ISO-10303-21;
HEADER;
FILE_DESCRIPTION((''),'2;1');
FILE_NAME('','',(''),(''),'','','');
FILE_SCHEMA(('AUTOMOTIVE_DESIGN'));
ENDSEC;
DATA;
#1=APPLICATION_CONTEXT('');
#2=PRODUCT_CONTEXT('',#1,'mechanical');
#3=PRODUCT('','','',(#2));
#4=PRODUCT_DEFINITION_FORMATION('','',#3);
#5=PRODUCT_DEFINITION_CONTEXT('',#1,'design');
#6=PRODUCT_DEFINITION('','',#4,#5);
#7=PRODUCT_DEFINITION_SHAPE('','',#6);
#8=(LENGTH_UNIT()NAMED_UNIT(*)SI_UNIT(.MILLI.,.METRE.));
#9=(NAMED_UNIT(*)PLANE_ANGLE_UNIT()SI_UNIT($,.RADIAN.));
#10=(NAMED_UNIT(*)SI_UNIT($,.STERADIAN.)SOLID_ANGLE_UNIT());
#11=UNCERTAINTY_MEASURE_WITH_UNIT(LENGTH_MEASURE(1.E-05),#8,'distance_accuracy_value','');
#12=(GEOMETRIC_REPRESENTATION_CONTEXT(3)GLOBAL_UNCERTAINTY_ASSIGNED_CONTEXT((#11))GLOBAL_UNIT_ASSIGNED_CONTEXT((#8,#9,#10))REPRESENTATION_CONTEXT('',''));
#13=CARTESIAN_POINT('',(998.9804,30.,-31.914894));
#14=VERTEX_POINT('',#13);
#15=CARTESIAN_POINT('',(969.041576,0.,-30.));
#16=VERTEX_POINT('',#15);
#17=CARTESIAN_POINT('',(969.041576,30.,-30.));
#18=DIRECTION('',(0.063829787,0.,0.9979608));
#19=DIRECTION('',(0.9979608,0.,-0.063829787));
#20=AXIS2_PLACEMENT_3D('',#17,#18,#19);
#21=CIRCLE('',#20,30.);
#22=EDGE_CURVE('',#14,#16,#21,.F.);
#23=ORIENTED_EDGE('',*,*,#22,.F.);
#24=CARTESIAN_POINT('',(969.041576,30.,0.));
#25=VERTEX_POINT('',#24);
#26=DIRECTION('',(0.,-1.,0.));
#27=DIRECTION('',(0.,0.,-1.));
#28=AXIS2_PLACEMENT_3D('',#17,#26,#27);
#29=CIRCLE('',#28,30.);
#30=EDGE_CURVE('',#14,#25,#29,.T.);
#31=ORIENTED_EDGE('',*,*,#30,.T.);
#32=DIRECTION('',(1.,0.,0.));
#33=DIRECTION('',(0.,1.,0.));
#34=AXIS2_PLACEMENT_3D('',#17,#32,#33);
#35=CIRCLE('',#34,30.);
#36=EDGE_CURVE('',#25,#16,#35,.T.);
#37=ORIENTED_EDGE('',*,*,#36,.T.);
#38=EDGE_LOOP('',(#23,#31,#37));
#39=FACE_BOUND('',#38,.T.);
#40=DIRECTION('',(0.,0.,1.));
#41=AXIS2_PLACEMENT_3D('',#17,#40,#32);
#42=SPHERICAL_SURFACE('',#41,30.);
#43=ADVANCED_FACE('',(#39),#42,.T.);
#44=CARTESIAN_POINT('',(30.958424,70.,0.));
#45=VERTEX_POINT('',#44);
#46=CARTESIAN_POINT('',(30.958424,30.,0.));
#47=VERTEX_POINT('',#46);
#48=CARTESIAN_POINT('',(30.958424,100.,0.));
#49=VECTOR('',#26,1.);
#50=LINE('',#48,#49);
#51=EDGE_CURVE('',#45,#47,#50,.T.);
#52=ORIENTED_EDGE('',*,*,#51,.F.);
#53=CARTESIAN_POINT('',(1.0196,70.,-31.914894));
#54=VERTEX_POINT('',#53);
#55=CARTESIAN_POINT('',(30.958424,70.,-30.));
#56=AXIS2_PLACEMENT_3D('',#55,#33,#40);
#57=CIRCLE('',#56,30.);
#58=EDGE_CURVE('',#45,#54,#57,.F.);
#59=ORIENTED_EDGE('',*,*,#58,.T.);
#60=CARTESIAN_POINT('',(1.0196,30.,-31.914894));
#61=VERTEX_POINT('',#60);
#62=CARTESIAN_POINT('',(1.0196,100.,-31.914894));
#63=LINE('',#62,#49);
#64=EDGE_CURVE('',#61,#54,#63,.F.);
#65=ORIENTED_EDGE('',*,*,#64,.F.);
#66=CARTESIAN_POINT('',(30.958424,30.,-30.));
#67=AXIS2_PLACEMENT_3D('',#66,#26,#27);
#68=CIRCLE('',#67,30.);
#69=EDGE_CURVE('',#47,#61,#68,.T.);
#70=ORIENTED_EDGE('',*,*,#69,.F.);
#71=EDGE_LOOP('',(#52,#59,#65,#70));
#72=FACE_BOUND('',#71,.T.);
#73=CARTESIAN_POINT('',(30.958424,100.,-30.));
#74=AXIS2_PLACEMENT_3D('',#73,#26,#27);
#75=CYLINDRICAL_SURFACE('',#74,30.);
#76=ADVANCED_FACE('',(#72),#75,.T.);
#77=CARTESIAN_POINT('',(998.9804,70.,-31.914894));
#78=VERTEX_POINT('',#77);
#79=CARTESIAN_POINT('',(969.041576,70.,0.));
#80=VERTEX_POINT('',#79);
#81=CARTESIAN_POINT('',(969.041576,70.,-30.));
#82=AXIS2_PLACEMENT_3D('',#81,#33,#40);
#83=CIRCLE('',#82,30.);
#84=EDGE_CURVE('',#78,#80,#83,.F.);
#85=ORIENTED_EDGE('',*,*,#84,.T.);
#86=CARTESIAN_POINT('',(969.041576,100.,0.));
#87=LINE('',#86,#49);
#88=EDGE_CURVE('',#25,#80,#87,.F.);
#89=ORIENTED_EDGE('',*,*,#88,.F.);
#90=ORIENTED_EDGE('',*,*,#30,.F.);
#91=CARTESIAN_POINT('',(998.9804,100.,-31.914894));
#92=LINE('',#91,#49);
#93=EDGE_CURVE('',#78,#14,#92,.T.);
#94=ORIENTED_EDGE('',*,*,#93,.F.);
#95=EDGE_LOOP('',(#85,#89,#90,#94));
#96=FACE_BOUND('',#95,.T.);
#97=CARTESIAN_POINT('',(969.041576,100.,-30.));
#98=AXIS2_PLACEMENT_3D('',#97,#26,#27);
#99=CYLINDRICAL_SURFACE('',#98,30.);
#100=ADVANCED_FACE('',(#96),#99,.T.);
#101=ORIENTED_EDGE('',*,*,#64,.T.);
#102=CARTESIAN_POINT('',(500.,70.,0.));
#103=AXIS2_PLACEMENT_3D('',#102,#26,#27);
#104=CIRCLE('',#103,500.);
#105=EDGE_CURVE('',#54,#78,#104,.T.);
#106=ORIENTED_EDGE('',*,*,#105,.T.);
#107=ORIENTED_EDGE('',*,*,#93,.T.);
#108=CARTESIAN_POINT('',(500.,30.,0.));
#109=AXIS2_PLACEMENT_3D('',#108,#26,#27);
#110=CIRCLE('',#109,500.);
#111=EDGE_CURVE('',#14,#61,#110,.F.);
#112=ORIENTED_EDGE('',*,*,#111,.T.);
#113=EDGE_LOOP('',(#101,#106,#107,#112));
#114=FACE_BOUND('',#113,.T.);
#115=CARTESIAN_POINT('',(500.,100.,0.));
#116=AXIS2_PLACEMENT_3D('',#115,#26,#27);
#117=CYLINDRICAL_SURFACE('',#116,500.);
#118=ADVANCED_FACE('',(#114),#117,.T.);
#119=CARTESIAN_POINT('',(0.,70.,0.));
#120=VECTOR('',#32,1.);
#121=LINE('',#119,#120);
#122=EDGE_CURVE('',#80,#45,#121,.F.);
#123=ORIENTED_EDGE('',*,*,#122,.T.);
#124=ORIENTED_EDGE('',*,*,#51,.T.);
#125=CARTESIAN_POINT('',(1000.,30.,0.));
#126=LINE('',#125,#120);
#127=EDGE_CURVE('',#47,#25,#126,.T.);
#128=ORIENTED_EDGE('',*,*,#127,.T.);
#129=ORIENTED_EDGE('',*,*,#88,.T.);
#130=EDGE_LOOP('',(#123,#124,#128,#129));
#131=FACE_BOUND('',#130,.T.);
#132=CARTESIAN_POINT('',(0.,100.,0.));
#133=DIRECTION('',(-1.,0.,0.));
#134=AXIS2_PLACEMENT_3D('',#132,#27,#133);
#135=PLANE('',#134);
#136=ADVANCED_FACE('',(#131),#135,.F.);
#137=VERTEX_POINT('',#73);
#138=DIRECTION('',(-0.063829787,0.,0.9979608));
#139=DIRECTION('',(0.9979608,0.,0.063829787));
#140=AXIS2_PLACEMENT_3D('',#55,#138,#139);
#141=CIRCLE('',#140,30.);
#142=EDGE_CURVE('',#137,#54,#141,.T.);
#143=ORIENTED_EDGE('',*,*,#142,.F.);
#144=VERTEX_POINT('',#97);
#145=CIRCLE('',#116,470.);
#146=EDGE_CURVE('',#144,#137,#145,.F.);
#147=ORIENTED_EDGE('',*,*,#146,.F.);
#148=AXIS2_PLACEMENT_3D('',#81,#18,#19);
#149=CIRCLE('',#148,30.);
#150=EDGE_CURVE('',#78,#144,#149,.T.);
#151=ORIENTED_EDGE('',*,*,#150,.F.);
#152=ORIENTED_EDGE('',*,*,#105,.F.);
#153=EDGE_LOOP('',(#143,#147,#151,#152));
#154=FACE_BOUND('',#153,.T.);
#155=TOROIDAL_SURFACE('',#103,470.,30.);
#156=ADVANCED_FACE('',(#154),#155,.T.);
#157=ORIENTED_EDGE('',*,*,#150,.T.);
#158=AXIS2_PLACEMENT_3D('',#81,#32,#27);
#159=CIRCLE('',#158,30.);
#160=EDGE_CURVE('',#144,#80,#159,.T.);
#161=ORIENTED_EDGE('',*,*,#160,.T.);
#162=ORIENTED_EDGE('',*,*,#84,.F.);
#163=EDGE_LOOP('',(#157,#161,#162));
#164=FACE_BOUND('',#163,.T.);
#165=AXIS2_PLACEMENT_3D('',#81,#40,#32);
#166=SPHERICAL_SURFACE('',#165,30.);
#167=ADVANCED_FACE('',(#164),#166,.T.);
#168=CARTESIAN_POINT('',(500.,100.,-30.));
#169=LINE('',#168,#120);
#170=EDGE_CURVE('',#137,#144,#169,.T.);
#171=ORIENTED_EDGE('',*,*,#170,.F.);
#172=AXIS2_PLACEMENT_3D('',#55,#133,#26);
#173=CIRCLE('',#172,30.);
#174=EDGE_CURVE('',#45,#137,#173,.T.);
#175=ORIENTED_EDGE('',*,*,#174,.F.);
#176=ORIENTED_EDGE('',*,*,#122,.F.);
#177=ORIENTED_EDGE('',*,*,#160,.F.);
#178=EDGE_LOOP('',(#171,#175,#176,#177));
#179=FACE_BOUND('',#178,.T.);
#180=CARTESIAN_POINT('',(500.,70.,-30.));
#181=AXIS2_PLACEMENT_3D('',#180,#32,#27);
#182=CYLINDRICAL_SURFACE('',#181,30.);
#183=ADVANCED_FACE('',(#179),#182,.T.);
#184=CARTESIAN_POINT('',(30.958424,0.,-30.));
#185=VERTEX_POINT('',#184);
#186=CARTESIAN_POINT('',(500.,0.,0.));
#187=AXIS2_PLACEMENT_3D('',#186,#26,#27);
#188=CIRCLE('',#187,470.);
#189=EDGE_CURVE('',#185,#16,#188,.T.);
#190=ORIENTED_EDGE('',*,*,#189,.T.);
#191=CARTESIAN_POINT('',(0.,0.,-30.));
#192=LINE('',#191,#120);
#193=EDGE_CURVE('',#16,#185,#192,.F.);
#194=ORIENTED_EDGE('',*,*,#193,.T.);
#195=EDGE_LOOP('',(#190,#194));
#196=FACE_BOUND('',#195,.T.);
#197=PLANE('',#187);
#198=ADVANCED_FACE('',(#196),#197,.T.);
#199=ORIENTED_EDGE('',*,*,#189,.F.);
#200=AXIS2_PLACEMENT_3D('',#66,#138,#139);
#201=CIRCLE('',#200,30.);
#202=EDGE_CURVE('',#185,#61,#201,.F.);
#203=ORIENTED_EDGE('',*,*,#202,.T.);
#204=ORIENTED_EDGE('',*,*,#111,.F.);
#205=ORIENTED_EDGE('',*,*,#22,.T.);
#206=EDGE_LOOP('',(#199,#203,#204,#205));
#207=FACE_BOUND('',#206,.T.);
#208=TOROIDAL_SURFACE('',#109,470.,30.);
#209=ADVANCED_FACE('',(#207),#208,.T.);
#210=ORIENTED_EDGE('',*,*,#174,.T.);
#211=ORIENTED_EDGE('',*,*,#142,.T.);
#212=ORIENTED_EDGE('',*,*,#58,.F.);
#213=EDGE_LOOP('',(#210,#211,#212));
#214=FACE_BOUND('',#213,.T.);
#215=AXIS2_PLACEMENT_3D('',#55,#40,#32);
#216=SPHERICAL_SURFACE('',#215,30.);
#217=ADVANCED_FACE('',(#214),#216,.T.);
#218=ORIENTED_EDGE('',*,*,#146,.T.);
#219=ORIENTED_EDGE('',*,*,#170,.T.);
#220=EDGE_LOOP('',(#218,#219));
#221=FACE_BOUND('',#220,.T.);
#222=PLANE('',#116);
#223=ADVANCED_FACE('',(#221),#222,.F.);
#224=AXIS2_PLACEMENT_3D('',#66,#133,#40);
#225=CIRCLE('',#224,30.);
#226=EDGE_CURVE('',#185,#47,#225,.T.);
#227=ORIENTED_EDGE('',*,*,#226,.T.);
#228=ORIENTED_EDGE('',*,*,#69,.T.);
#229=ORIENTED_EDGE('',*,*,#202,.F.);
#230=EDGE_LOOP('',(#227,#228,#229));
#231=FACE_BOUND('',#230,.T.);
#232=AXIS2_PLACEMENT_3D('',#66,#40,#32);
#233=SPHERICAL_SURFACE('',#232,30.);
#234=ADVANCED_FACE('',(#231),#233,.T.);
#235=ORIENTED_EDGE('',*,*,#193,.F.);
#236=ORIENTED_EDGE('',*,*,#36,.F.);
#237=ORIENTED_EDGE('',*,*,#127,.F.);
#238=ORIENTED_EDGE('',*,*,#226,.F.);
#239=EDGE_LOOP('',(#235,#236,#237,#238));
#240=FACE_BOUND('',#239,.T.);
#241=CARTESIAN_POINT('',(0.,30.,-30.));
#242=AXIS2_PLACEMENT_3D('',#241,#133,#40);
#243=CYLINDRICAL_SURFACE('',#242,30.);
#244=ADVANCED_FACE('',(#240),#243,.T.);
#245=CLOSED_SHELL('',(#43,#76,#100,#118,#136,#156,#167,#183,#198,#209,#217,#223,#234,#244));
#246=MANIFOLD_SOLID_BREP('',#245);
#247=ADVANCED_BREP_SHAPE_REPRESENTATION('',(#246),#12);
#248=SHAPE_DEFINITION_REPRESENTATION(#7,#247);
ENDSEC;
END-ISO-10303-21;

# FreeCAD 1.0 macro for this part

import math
import FreeCAD as App
import Part
import Sketcher

doc = App.newDocument("Part")
body = doc.addObject("PartDesign::Body", "Body")

# Sketch on XZ plane
sketch1 = doc.addObject("Sketcher::SketchObject", "Sketch")
body.addObject(sketch1)
sketch1.AttachmentSupport = (doc.XZ_Plane, [""])
sketch1.MapMode = "FlatFace"
sketch1.addGeometry([
    Part.LineSegment(App.Vector(0, 0, 0), App.Vector(1000, 0, 0)),
    Part.ArcOfCircle(Part.Circle(App.Vector(500, 0, 0), App.Vector(0, 0, 1), 500), math.radians(180), math.radians(360)),
], False)
sketch1.addConstraint([
    Sketcher.Constraint("Coincident", 0, 1, 1, 1),
    Sketcher.Constraint("Coincident", 1, 2, 0, 2),
    Sketcher.Constraint("Horizontal", 0),
    Sketcher.Constraint("Coincident", 0, 1, -1, 1),
    Sketcher.Constraint("PointOnObject", 1, 3, -1),
    Sketcher.Constraint("Radius", 1, 500.0),
])
pad1 = doc.addObject("PartDesign::Pad", "Pad")
body.addObject(pad1)
pad1.Profile = sketch1
pad1.Length = 100
pad1.Reversed = True
doc.recompute()

fillet = doc.addObject("PartDesign::Fillet", "Fillet")
body.addObject(fillet)
fillet.Base = (pad1, ["Edge1"])
fillet.UseAllEdges = True
fillet.Radius = 30

doc.recompute()
